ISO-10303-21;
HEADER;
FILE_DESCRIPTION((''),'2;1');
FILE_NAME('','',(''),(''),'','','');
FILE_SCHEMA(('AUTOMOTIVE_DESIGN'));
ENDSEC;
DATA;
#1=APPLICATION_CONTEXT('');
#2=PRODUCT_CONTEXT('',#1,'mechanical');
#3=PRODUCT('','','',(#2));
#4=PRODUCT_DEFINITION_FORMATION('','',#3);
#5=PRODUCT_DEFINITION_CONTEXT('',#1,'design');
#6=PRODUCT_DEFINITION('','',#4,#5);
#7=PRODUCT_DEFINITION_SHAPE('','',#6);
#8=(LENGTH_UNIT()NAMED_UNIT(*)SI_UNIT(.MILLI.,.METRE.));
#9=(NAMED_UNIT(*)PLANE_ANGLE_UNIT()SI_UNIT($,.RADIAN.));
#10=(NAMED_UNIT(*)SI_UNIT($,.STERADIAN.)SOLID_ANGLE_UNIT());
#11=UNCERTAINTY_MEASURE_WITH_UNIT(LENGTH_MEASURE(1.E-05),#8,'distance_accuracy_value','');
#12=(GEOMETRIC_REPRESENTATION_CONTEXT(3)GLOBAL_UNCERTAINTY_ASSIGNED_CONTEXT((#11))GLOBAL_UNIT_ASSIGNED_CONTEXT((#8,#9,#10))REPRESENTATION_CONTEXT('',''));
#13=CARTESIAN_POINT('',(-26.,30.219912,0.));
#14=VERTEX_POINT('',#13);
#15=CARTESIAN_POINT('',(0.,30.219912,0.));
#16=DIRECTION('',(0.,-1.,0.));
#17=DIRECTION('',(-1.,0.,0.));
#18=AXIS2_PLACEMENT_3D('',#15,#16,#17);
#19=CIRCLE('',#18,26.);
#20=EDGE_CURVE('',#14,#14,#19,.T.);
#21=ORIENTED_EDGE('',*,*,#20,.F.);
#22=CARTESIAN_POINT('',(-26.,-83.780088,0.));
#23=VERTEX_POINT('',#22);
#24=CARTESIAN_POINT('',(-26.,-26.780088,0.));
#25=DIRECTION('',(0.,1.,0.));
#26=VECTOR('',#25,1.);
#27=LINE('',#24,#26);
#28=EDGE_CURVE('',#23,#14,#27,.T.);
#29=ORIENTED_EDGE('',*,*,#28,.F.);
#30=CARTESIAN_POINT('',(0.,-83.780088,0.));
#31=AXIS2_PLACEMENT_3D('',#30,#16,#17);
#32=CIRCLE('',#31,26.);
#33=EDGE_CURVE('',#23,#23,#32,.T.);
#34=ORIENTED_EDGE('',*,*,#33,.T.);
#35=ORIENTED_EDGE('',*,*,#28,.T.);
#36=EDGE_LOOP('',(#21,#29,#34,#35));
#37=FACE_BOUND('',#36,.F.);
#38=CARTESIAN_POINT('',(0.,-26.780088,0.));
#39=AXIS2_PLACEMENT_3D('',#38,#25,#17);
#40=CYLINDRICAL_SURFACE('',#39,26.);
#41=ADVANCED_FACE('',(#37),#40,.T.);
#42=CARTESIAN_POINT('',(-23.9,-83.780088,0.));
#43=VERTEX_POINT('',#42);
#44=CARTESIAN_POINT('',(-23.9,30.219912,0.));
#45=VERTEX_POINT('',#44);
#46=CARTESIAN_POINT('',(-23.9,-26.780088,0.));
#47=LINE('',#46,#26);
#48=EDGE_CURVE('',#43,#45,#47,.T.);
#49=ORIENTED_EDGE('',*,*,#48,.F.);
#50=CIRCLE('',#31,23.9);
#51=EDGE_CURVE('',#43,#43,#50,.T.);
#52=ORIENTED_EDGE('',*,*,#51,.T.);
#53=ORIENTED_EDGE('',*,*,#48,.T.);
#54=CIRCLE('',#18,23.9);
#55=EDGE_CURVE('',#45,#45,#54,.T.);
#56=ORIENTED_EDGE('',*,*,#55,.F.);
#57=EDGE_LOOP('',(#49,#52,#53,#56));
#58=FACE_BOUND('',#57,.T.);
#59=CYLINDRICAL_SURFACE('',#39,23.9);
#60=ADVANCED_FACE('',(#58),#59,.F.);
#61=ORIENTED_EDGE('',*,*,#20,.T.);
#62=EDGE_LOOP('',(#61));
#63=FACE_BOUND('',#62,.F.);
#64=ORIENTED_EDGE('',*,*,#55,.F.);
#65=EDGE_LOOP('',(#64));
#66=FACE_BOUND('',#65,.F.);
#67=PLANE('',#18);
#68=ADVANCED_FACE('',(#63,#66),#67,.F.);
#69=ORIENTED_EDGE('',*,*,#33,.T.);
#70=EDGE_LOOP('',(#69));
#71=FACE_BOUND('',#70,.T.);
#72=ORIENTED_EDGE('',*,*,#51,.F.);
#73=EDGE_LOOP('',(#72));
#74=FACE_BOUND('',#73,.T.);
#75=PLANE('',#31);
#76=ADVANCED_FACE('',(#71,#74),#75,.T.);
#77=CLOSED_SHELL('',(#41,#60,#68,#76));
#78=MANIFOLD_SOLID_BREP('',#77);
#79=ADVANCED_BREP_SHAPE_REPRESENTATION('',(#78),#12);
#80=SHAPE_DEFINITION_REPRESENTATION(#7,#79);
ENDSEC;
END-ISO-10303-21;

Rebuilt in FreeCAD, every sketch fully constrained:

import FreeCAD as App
import Part
import Sketcher


def add_polygon(sketch, points):
    """Adds a closed chain of lines whose ends are joined by coincident constraints."""
    first, n = sketch.GeometryCount, len(points)
    for a, b in zip(points, points[1:] + points[:1]):
        sketch.addGeometry(Part.LineSegment(App.Vector(*a, 0), App.Vector(*b, 0)), False)
    for i in range(n):
        sketch.addConstraint(Sketcher.Constraint("Coincident", first + i, 2, first + (i + 1) % n, 1))

doc = App.newDocument("Part")
params = doc.addObject("Spreadsheet::Sheet", "Params")
for row, (alias, value) in enumerate([
    ("sketch1_height", "114 mm"),
    ("sketch1_width", "2.1 mm"),
    ("revolution_angle", "360 deg"),
], start=1):
    params.set(f"A{row}", alias)
    params.set(f"B{row}", "=" + value)
    params.setAlias(f"B{row}", alias)

body = doc.addObject("PartDesign::Body", "Body")

# Sketch on XY plane
sketch1 = body.newObject("Sketcher::SketchObject", "Sketch")
sketch1.AttachmentSupport = (doc.getObject("XY_Plane"), [""])
sketch1.MapMode = "FlatFace"
add_polygon(sketch1, [(-26, 30.2), (-26, -83.8), (-23.9, -83.8), (-23.9, 30.2)])  # lines 0-3
sketch1.addConstraint([
    Sketcher.Constraint("Vertical", 0),
    Sketcher.Constraint("Horizontal", 1),
    Sketcher.Constraint("Vertical", 2),
    Sketcher.Constraint("Horizontal", 3),
    Sketcher.Constraint("DistanceY", 0, 2, 0, 1, 114.0),
    Sketcher.Constraint("DistanceX", 1, 1, 1, 2, 2.1),
    Sketcher.Constraint("DistanceX", 0, 2, -1, 1, 26.0),
    Sketcher.Constraint("DistanceY", 0, 2, -1, 1, 83.780088),
])
sketch1.setExpression("Constraints[8]", "Params.sketch1_height")
sketch1.setExpression("Constraints[9]", "Params.sketch1_width")
revolution = body.newObject("PartDesign::Revolution", "Revolution")
revolution.Profile = sketch1
revolution.ReferenceAxis = (sketch1, ["V_Axis"])
revolution.setExpression("Angle", "Params.revolution_angle")

doc.recompute()
